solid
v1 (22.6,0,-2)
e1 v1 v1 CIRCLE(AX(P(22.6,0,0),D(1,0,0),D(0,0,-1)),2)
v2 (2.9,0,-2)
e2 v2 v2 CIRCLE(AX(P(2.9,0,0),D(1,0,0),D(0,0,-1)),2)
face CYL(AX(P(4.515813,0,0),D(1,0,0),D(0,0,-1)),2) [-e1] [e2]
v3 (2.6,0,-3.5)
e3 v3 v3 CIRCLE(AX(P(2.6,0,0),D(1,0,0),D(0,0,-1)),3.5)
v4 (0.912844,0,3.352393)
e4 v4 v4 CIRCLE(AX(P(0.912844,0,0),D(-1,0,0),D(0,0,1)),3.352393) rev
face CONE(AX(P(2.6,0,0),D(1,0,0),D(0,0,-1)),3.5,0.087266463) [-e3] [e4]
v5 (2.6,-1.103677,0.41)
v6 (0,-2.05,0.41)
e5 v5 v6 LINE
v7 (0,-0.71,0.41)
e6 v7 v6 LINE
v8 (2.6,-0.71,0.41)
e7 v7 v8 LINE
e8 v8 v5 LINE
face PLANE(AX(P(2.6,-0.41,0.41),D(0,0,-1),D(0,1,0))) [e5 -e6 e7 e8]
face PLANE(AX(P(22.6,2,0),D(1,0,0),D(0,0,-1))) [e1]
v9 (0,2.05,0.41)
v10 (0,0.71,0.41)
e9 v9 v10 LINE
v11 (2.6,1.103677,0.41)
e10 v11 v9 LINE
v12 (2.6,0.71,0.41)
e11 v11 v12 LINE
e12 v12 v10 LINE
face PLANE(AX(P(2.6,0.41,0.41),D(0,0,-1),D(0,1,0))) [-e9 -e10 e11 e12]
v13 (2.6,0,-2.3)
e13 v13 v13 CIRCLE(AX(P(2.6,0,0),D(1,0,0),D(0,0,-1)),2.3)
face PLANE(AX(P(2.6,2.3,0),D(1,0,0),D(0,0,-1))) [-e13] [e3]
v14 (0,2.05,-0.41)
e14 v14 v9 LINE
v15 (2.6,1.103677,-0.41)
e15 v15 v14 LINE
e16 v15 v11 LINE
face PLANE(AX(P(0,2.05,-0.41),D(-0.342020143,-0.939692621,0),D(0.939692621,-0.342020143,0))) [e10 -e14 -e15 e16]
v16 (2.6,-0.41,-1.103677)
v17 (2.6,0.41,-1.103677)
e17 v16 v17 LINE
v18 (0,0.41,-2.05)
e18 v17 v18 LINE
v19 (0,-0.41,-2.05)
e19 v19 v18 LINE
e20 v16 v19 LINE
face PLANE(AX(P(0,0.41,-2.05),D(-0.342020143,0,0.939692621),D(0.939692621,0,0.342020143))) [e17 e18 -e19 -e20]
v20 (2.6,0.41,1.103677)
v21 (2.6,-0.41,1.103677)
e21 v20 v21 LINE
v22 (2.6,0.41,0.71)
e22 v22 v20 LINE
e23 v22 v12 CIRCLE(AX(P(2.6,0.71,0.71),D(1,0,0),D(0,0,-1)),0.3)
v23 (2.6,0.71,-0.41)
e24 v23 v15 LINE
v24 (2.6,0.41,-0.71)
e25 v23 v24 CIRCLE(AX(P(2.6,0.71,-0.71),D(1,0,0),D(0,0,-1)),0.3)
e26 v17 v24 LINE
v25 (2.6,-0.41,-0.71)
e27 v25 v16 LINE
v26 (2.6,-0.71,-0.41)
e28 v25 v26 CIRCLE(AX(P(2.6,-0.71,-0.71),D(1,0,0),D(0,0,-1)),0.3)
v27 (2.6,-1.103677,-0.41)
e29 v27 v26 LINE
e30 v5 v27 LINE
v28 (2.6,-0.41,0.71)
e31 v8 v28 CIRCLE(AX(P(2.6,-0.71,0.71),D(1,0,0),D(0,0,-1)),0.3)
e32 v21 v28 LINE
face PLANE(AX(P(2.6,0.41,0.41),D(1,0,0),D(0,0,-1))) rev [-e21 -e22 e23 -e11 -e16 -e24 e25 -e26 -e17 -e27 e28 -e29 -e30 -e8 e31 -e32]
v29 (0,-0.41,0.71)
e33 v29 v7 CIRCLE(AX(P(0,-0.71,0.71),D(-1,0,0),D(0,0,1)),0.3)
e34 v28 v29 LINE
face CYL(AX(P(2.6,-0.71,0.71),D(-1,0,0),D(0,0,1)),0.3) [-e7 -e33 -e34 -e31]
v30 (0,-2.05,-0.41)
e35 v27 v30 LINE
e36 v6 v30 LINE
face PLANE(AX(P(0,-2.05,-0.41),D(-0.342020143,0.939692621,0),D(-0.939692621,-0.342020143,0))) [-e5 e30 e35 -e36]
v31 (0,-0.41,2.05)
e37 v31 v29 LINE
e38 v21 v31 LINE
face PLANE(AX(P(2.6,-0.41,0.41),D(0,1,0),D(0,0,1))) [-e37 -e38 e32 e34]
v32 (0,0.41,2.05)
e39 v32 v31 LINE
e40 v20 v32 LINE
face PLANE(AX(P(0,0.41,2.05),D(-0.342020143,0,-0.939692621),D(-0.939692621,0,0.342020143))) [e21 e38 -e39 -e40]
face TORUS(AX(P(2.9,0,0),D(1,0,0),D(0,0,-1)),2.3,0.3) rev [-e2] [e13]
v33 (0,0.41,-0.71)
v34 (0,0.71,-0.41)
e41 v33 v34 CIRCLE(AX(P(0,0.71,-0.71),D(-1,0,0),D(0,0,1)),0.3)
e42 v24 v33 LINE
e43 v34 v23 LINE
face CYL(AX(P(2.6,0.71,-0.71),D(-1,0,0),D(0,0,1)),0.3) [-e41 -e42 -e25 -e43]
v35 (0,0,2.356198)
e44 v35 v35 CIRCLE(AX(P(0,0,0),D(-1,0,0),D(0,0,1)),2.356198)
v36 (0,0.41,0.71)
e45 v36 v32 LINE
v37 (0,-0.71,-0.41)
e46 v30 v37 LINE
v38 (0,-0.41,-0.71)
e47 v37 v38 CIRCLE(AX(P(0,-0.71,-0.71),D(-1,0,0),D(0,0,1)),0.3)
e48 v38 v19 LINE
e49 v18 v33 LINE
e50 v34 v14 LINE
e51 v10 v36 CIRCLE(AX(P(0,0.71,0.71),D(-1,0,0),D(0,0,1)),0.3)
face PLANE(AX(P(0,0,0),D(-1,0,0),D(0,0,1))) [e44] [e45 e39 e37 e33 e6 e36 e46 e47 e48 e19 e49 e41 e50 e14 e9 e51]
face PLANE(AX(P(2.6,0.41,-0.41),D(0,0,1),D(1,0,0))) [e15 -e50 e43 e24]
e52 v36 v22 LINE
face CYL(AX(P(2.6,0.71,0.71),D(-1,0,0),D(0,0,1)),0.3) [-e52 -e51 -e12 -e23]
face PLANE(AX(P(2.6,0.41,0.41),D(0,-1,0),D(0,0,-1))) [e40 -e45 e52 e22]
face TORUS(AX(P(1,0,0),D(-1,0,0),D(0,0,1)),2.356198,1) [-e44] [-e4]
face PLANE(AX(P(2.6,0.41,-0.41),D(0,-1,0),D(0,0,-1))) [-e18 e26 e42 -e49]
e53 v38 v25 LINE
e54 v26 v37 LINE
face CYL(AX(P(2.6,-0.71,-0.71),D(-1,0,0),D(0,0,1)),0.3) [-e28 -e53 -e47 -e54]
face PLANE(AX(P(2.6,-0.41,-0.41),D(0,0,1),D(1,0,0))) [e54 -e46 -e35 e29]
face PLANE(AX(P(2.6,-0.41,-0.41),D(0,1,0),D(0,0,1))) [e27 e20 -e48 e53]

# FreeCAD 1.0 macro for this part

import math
import FreeCAD as App
import Part
import Sketcher

V = App.Vector
Q = App.Units.Quantity


def edges_at(feature, points):
    """Names of the edges that pass closest to the given points."""
    edges = feature.Shape.Edges
    near = lambda p: min(range(len(edges)), key=lambda i: edges[i].distToShape(Part.Vertex(*p))[0])
    return sorted({f"Edge{near(p) + 1}" for p in points})


def faces_at(feature, points):
    """Names of the faces that lie closest to the given points."""
    faces = feature.Shape.Faces
    near = lambda p: min(range(len(faces)), key=lambda i: faces[i].distToShape(Part.Vertex(*p))[0])
    return sorted({f"Face{near(p) + 1}" for p in points})


def add_polygon(sketch, points):
    """Adds a closed chain of lines whose ends are joined by coincident constraints."""
    first, n = sketch.GeometryCount, len(points)
    for a, b in zip(points, points[1:] + points[:1]):
        sketch.addGeometry(Part.LineSegment(App.Vector(*a, 0), App.Vector(*b, 0)), False)
    for i in range(n):
        sketch.addConstraint(Sketcher.Constraint("Coincident", first + i, 2, first + (i + 1) % n, 1))

doc = App.newDocument("Part")
body = doc.addObject("PartDesign::Body", "Body")

# Sketch on XY plane
sketch1 = body.newObject("Sketcher::SketchObject", "Sketch")
sketch1.AttachmentSupport = (doc.getObject("XY_Plane"), [""])
sketch1.MapMode = "FlatFace"
sketch1.addGeometry([
    Part.LineSegment(V(22.6, 2, 0), V(2.9, 2, 0)),  # 0
    Part.ArcOfCircle(Part.Circle(V(2.9, 2.3, 0), V(0, 0, 1), 0.3), math.radians(-180), math.radians(-90)),  # 1
    Part.LineSegment(V(2.6, 2.3, 0), V(2.6, 3.5, 0)),  # 2
    Part.LineSegment(V(2.6, 3.5, 0), V(0, 3.27, 0)),  # 3
    Part.LineSegment(V(0, 3.27, 0), V(0, 0, 0)),  # 4
    Part.LineSegment(V(0, 0, 0), V(22.6, 0, 0)),  # 5
    Part.LineSegment(V(22.6, 0, 0), V(22.6, 2, 0)),  # 6
], False)
sketch1.addConstraint([
    Sketcher.Constraint("Tangent", 0, 2, 1, 2),
    Sketcher.Constraint("Tangent", 1, 1, 2, 1),
    Sketcher.Constraint("Coincident", 2, 2, 3, 1),
    Sketcher.Constraint("Coincident", 3, 2, 4, 1),
    Sketcher.Constraint("Coincident", 4, 2, 5, 1),
    Sketcher.Constraint("Coincident", 5, 2, 6, 1),
    Sketcher.Constraint("Coincident", 6, 2, 0, 1),
    Sketcher.Constraint("Horizontal", 0),
    Sketcher.Constraint("Vertical", 2),
    Sketcher.Constraint("Vertical", 4),
    Sketcher.Constraint("Horizontal", 5),
    Sketcher.Constraint("Vertical", 6),
    Sketcher.Constraint("Coincident", 4, 2, -1, 1),
    Sketcher.Constraint("Radius", 1, 0.3),
    Sketcher.Constraint("DistanceY", 6, 1, 6, 2, 2.0),
    Sketcher.Constraint("Angle", 3, Q("-175 deg")),
    Sketcher.Constraint("DistanceX", 0, 2, 0, 1, 19.7),
    Sketcher.Constraint("DistanceX", 5, 1, 5, 2, 22.6),
    Sketcher.Constraint("DistanceY", 2, 1, 2, 2, 1.2),
])
revolution = body.newObject("PartDesign::Revolution", "Revolution")
revolution.Profile = sketch1
revolution.ReferenceAxis = (sketch1, ["H_Axis"])
revolution.Angle = 360

# Sketch on YZ plane
sketch2 = body.newObject("Sketcher::SketchObject", "Sketch001")
sketch2.AttachmentSupport = (doc.getObject("YZ_Plane"), [""])
sketch2.MapMode = "FlatFace"
add_polygon(sketch2, [(0.4, -0.4), (2, -0.4), (2, 0.4), (0.4, 0.4), (0.4, 2), (-0.4, 2), (-0.4, 0.4), (-2, 0.4), (-2, -0.4), (-0.4, -0.4), (-0.4, -2), (0.4, -2)])  # lines 0-11
sketch2.addConstraint([
    Sketcher.Constraint("Horizontal", 0),
    Sketcher.Constraint("Vertical", 1),
    Sketcher.Constraint("Horizontal", 2),
    Sketcher.Constraint("Vertical", 3),
    Sketcher.Constraint("Horizontal", 4),
    Sketcher.Constraint("Vertical", 5),
    Sketcher.Constraint("Horizontal", 6),
    Sketcher.Constraint("Vertical", 7),
    Sketcher.Constraint("Horizontal", 8),
    Sketcher.Constraint("Vertical", 9),
    Sketcher.Constraint("Horizontal", 10),
    Sketcher.Constraint("Vertical", 11),
    Sketcher.Constraint("Symmetric", 0, 2, 6, 2, -1, 1),
    Sketcher.Constraint("Symmetric", 2, 2, 8, 2, -1, 1),
    Sketcher.Constraint("Symmetric", 4, 2, 10, 2, -1, 1),
    Sketcher.Constraint("Symmetric", 2, 2, 5, 2, -2),
    Sketcher.Constraint("Equal", 10, 1),
    Sketcher.Constraint("Equal", 8, 3),
    Sketcher.Constraint("DistanceX", 0, 1, 0, 2, 1.64),
    Sketcher.Constraint("DistanceX", 4, 2, 4, 1, 0.82),
])
pocket1 = body.newObject("PartDesign::Pocket", "Pocket")
pocket1.Profile = sketch2
pocket1.Length = 2.6
pocket1.Reversed = True
doc.recompute()

fillet = body.newObject("PartDesign::Fillet", "Fillet")
fillet.Base = (pocket1, edges_at(pocket1, [
    (1.3, 0.41, 0.41),
    (1.3, -0.41, 0.41),
    (1.3, -0.41, -0.41),
    (1.3, 0.41, -0.41),
]))
fillet.Radius = 0.3
doc.recompute()

fillet2 = body.newObject("PartDesign::Fillet", "Fillet001")
fillet2.Base = (fillet, edges_at(fillet, [(0, -3.273, 0)]))
fillet2.Radius = 1
doc.recompute()

draft = body.newObject("PartDesign::Draft", "Draft")
draft.Base = (fillet2, faces_at(fillet2, [
    (1.3, 0, 2.05),
    (1.3, -2.05, 0),
    (1.3, 0, -2.05),
    (1.3, 2.05, 0),
]))
draft.NeutralPlane = (doc.getObject("YZ_Plane"), [""])
draft.Angle = 20
draft.Reversed = True

doc.recompute()
